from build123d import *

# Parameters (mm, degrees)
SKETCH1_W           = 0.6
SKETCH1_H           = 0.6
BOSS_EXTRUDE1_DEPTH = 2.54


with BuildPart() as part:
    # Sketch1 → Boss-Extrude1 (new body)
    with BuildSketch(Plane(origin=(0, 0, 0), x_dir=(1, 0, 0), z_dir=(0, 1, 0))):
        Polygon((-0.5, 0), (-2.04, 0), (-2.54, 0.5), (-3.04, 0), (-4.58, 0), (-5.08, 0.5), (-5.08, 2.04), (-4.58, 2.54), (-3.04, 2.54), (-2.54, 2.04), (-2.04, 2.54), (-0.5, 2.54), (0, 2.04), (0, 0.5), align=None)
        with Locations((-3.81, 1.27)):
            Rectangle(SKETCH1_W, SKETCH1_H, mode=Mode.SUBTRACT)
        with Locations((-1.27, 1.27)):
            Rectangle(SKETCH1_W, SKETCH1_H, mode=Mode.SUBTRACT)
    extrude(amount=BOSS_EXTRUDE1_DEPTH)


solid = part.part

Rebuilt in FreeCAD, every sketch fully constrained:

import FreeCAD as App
import Part
import Sketcher
from FreeCAD import Vector


def add_polygon(sketch, points):
    """Adds a closed chain of lines whose ends are joined by coincident constraints."""
    first, n = sketch.GeometryCount, len(points)
    for a, b in zip(points, points[1:] + points[:1]):
        sketch.addGeometry(Part.LineSegment(App.Vector(*a, 0), App.Vector(*b, 0)), False)
    for i in range(n):
        sketch.addConstraint(Sketcher.Constraint("Coincident", first + i, 2, first + (i + 1) % n, 1))

doc = App.newDocument("Part")
body = doc.addObject("PartDesign::Body", "Body")

sketch1 = body.newObject("Sketcher::SketchObject", "Sketch")
sketch1.AttachmentSupport = (doc.getObject("XZ_Plane"), [""])
sketch1.MapMode = "FlatFace"
add_polygon(sketch1, [(-2, 0), (-0.5, 0), (0, -0.5), (0, -2), (-0.5, -2.5), (-2, -2.5), (-2.5, -2), (-3, -2.5), (-4.6, -2.5), (-5.1, -2), (-5.1, -0.5), (-4.6, 0), (-3, 0), (-2.5, -0.5)])
add_polygon(sketch1, [(-1.6, -1), (-1.6, -1.6), (-1, -1.6), (-1, -1)])
add_polygon(sketch1, [(-4.1, -1), (-4.1, -1.6), (-3.5, -1.6), (-3.5, -1)])
sketch1.addConstraint(Sketcher.Constraint("Horizontal", 0))
sketch1.addConstraint(Sketcher.Constraint("Vertical", 2))
sketch1.addConstraint(Sketcher.Constraint("Horizontal", 4))
sketch1.addConstraint(Sketcher.Constraint("Horizontal", 7))
sketch1.addConstraint(Sketcher.Constraint("Vertical", 9))
sketch1.addConstraint(Sketcher.Constraint("Horizontal", 11))
sketch1.addConstraint(Sketcher.Constraint("Vertical", 14))
sketch1.addConstraint(Sketcher.Constraint("Horizontal", 15))
sketch1.addConstraint(Sketcher.Constraint("Vertical", 16))
sketch1.addConstraint(Sketcher.Constraint("Horizontal", 17))
sketch1.addConstraint(Sketcher.Constraint("Vertical", 18))
sketch1.addConstraint(Sketcher.Constraint("Horizontal", 19))
sketch1.addConstraint(Sketcher.Constraint("Vertical", 20))
sketch1.addConstraint(Sketcher.Constraint("Horizontal", 21))
sketch1.addConstraint(Sketcher.Constraint("PointOnObject", 0, 2, -1))
sketch1.addConstraint(Sketcher.Constraint("PointOnObject", 1, 2, -2))
sketch1.addConstraint(Sketcher.Constraint("PointOnObject", 10, 2, -1))
sketch1.addConstraint(Sketcher.Constraint("Perpendicular", 1, 3))
sketch1.addConstraint(Sketcher.Constraint("Perpendicular", 3, 5))
sketch1.addConstraint(Sketcher.Constraint("Perpendicular", 5, 6))
sketch1.addConstraint(Sketcher.Constraint("Perpendicular", 6, 8))
sketch1.addConstraint(Sketcher.Constraint("Perpendicular", 8, 10))
sketch1.addConstraint(Sketcher.Constraint("Perpendicular", 10, 12))
sketch1.addConstraint(Sketcher.Constraint("Perpendicular", 12, 13))
sketch1.addConstraint(Sketcher.Constraint("Horizontal", 2, 2, 5, 2))
sketch1.addConstraint(Sketcher.Constraint("Horizontal", 4, 2, 6, 2))
sketch1.addConstraint(Sketcher.Constraint("Horizontal", 5, 2, 8, 2))
sketch1.addConstraint(Sketcher.Constraint("Horizontal", 1, 2, 9, 2))
sketch1.addConstraint(Sketcher.Constraint("Horizontal", 9, 2, 12, 2))
sketch1.addConstraint(Sketcher.Constraint("Horizontal", 15, 2, 18, 2))
sketch1.addConstraint(Sketcher.Constraint("Horizontal", 17, 2, 20, 2))
sketch1.addConstraint(Sketcher.Constraint("Vertical", 0, 2, 3, 2))
sketch1.addConstraint(Sketcher.Constraint("Vertical", 7, 2, 10, 2))
sketch1.addConstraint(Sketcher.Constraint("Vertical", 6, 2, 11, 2))
sketch1.addConstraint(Sketcher.Constraint("Equal", 4, 7))
sketch1.addConstraint(Sketcher.Constraint("Equal", 17, 19))
sketch1.addConstraint(Sketcher.Constraint("Equal", 11, 2))
sketch1.addConstraint(Sketcher.Constraint("Equal", 21, 14))
sketch1.addConstraint(Sketcher.Constraint("DistanceX", 15, 1, 15, 2, 0.6))
sketch1.addConstraint(Sketcher.Constraint("DistanceX", 6, 2, 4, 2, 1.0))
sketch1.addConstraint(Sketcher.Constraint("DistanceX", 0, 1, 0, 2, 1.54))
sketch1.addConstraint(Sketcher.Constraint("DistanceX", 14, 2, -1, 1, 1.57))
sketch1.addConstraint(Sketcher.Constraint("DistanceY", 14, 2, -1, 1, 1.57))
sketch1.addConstraint(Sketcher.Constraint("DistanceX", 18, 2, -1, 1, 4.11))
pad1 = body.newObject("PartDesign::Pad", "Pad")
pad1.Profile = sketch1
pad1.Length = 2.54
pad1.Reversed = True

doc.recompute()
